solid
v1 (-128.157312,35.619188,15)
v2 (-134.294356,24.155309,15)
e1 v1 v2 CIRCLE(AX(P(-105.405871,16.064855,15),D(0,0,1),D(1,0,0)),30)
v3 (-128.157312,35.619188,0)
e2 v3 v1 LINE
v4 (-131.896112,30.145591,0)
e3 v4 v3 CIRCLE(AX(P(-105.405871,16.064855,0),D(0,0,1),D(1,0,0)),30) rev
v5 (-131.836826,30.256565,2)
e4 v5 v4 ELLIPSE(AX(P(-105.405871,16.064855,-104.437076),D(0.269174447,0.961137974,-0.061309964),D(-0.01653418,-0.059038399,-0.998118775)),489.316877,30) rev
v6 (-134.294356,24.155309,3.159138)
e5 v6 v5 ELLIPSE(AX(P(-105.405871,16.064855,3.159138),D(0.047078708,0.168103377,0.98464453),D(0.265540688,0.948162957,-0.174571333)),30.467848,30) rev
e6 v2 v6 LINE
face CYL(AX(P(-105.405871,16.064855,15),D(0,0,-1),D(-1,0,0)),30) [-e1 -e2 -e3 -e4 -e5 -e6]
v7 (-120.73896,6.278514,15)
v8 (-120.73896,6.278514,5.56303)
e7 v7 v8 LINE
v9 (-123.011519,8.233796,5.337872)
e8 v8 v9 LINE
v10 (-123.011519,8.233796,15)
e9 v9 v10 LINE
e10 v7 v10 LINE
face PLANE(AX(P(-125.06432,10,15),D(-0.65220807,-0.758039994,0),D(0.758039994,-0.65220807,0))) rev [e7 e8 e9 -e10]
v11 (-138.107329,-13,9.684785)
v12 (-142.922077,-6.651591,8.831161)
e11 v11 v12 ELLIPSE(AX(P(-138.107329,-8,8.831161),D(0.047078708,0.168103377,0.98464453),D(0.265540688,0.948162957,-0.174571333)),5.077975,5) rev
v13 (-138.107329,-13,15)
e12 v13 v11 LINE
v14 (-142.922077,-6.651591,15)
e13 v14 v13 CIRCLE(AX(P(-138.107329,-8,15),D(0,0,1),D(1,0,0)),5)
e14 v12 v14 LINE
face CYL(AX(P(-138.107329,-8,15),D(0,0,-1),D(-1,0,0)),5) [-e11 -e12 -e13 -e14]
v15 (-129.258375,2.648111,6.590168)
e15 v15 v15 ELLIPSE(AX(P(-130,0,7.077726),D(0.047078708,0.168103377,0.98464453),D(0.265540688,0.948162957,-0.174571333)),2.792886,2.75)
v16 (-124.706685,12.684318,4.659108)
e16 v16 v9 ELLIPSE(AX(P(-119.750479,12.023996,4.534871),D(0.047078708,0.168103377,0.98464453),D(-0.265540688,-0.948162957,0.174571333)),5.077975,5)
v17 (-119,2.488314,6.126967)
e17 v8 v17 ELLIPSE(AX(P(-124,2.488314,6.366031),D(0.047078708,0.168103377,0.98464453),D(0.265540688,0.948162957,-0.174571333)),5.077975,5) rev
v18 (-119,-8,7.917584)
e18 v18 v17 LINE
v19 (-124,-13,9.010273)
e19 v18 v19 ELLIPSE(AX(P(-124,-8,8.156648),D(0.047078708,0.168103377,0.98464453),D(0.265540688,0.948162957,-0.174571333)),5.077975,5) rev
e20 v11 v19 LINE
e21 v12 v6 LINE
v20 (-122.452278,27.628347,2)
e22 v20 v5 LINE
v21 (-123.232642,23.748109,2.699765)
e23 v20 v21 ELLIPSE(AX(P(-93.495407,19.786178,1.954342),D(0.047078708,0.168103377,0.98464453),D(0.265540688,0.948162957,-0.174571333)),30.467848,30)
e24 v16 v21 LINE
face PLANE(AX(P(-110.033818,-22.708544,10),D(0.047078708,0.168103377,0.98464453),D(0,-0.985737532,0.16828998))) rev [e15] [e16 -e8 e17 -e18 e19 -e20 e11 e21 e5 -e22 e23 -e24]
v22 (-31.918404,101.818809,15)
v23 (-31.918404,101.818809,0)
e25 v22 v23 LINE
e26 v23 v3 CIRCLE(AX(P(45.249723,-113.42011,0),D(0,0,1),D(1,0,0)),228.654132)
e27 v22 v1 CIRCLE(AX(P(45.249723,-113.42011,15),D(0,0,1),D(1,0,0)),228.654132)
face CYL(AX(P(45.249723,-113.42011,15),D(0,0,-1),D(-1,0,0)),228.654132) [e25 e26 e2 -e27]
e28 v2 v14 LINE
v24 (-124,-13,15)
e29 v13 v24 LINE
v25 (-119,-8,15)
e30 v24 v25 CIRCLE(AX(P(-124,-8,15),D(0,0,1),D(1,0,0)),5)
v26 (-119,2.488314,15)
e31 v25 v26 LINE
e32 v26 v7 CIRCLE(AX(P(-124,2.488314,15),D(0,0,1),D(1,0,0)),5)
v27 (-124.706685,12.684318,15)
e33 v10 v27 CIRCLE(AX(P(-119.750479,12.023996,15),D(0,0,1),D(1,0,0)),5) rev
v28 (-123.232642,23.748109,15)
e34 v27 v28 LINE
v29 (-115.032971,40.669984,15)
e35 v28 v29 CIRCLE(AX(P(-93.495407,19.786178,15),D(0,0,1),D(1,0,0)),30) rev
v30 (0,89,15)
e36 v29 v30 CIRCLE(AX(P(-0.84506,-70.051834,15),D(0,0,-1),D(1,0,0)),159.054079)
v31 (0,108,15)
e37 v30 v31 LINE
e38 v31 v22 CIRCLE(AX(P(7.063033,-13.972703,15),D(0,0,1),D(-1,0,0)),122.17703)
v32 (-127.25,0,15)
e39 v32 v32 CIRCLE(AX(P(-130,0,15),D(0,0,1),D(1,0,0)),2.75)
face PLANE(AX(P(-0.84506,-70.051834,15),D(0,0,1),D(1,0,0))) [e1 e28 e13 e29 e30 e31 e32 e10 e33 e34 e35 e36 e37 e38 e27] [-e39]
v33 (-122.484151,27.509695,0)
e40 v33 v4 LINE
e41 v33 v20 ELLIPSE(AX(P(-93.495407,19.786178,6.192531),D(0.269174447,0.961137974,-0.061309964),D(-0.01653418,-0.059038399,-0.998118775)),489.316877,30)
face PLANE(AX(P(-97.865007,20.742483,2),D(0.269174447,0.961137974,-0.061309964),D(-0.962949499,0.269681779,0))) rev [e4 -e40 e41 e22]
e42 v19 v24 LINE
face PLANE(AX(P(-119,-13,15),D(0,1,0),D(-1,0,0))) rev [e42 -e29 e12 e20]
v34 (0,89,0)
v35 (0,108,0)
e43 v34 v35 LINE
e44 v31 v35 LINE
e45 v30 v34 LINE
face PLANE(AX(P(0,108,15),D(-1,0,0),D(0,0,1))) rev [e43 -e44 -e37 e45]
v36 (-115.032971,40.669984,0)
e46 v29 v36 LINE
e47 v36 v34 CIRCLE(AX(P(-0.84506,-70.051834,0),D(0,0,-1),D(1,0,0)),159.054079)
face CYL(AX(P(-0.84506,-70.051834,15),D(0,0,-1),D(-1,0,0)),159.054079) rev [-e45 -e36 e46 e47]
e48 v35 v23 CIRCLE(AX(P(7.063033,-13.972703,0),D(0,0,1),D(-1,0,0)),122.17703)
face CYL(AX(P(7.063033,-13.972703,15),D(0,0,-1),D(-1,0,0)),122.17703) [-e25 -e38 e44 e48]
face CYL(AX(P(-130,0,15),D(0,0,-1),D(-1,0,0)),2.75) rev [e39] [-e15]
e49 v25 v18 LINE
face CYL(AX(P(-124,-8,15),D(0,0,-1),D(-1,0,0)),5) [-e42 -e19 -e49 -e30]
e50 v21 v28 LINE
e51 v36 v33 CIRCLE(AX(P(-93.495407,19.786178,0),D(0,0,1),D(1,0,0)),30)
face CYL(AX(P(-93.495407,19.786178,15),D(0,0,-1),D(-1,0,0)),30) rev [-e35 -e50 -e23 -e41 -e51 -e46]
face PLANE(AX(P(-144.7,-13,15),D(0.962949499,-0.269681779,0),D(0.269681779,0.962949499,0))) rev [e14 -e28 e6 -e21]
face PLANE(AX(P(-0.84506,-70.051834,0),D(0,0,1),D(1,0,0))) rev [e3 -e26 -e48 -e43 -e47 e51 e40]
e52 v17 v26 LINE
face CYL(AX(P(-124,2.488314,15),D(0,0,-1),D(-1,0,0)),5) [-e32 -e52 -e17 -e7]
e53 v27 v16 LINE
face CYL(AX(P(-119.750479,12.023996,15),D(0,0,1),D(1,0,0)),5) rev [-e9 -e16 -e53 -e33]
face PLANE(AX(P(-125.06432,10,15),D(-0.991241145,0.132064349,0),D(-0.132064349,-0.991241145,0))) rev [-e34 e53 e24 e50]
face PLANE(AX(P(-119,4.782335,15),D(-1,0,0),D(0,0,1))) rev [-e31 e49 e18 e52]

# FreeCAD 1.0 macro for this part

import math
import FreeCAD as App
import Part
import Sketcher

V = App.Vector


def edges_at(feature, points):
    """Names of the edges that pass closest to the given points."""
    edges = feature.Shape.Edges
    near = lambda p: min(range(len(edges)), key=lambda i: edges[i].distToShape(Part.Vertex(*p))[0])
    return sorted({f"Edge{near(p) + 1}" for p in points})

doc = App.newDocument("Part")
body = doc.addObject("PartDesign::Body", "Body")

# Sketch on XY plane
sketch1 = doc.addObject("Sketcher::SketchObject", "Sketch")
body.addObject(sketch1)
sketch1.AttachmentSupport = (doc.XY_Plane, [""])
sketch1.MapMode = "FlatFace"
sketch1.addGeometry(Part.LineSegment(V(-125.06432, 10, 0), V(-122, 33, 0)), False)
sketch1.addGeometry(Part.ArcOfCircle(Part.Circle(V(-0.84506, -70.051834, 0), V(0, 0, 1), 159.054079), math.radians(89.695584), math.radians(139.616213)), False)
sketch1.addGeometry(Part.LineSegment(V(0, 89, 0), V(0, 108, 0)), False)
sketch1.addGeometry(Part.ArcOfCircle(Part.Circle(V(7.063033, -13.972703, 0), V(0, 0, 1), 122.17703), math.radians(93.314107), math.radians(108.605906)), False)
sketch1.addGeometry(Part.ArcOfCircle(Part.Circle(V(45.249723, -113.42011, 0), V(0, 0, 1), 228.654132), math.radians(109.72393), math.radians(141.046374)), False)
sketch1.addGeometry(Part.LineSegment(V(-132.56432, 30.332727, 0), V(-144.7, -13, 0)), False)
sketch1.addGeometry(Part.LineSegment(V(-144.7, -13, 0), V(-119, -13, 0)), False)
sketch1.addGeometry(Part.LineSegment(V(-119, -13, 0), V(-119, 4.782335, 0)), False)
sketch1.addGeometry(Part.LineSegment(V(-119, 4.782335, 0), V(-125.06432, 10, 0)), False)
sketch1.addGeometry(Part.Circle(V(-130, 0, 0), V(0, 0, 1), 2.75), False)
sketch1.addConstraint(Sketcher.Constraint("Coincident", 0, 2, 1, 2))
sketch1.addConstraint(Sketcher.Constraint("Coincident", 1, 1, 2, 1))
sketch1.addConstraint(Sketcher.Constraint("Coincident", 2, 2, 3, 1))
sketch1.addConstraint(Sketcher.Constraint("Coincident", 3, 2, 4, 1))
sketch1.addConstraint(Sketcher.Constraint("Coincident", 4, 2, 5, 1))
sketch1.addConstraint(Sketcher.Constraint("Coincident", 5, 2, 6, 1))
sketch1.addConstraint(Sketcher.Constraint("Coincident", 6, 2, 7, 1))
sketch1.addConstraint(Sketcher.Constraint("Coincident", 7, 2, 8, 1))
sketch1.addConstraint(Sketcher.Constraint("Coincident", 8, 2, 0, 1))
sketch1.addConstraint(Sketcher.Constraint("Vertical", 2))
sketch1.addConstraint(Sketcher.Constraint("Horizontal", 6))
sketch1.addConstraint(Sketcher.Constraint("Vertical", 7))
sketch1.addConstraint(Sketcher.Constraint("PointOnObject", 9, 3, -1))
sketch1.addConstraint(Sketcher.Constraint("PointOnObject", 1, 1, -2))
sketch1.addConstraint(Sketcher.Constraint("Diameter", 9, 5.5))
sketch1.addConstraint(Sketcher.Constraint("DistanceY", 2, 1, 2, 2, 19.0))
sketch1.addConstraint(Sketcher.Constraint("Distance", 5, 45.0))
sketch1.addConstraint(Sketcher.Constraint("Distance", 8, 8.0))
sketch1.addConstraint(Sketcher.Constraint("DistanceX", 6, 1, 6, 2, 25.7))
sketch1.addConstraint(Sketcher.Constraint("DistanceX", 9, 3, -1, 1, 130.0))
sketch1.addConstraint(Sketcher.Constraint("DistanceX", 0, 2, -1, 1, 122.0))
sketch1.addConstraint(Sketcher.Constraint("DistanceY", -1, 1, 0, 2, 33.0))
sketch1.addConstraint(Sketcher.Constraint("DistanceY", -1, 1, 1, 1, 89.0))
sketch1.addConstraint(Sketcher.Constraint("DistanceY", 5, 2, -1, 1, 13.0))
sketch1.addConstraint(Sketcher.Constraint("DistanceX", 6, 2, -1, 1, 119.0))
sketch1.addConstraint(Sketcher.Constraint("DistanceY", -1, 1, 8, 2, 10.0))
sketch1.addConstraint(Sketcher.Constraint("DistanceX", 4, 2, 8, 2, 7.5))
sketch1.addConstraint(Sketcher.Constraint("Radius", 1, 159.054079))
sketch1.addConstraint(Sketcher.Constraint("Radius", 3, 122.17703))
sketch1.addConstraint(Sketcher.Constraint("Radius", 4, 228.654132))
sketch1.addConstraint(Sketcher.Constraint("DistanceY", 7, 1, 7, 2, 17.782335))
sketch1.addConstraint(Sketcher.Constraint("DistanceY", 4, 3, -1, 1, 113.42011))
sketch1.addConstraint(Sketcher.Constraint("DistanceY", -1, 1, 3, 2, 101.818809))
pad1 = doc.addObject("PartDesign::Pad", "Pad")
body.addObject(pad1)
pad1.Profile = sketch1
pad1.Length = 15

# Sketch on an angled plane
sketch2 = doc.addObject("Sketcher::SketchObject", "Sketch001")
body.addObject(sketch2)
sketch2.Placement = App.Placement(V(-130.800251, 36.631666, 0), App.Rotation(V(0, 0, 1), V(0.269681779, 0.962949499, 0), V(-0.962949499, 0.269681779, 0), "ZXY"))
sketch2.addGeometry(Part.LineSegment(V(0, -51.541297, 0), V(10, -51.541297, 0)), False)
sketch2.addGeometry(Part.LineSegment(V(10, -51.541297, 0), V(2, -6.418446, 0)), False)
sketch2.addGeometry(Part.LineSegment(V(2, -6.418446, 0), V(0, -6.541297, 0)), False)
sketch2.addGeometry(Part.LineSegment(V(0, -6.541297, 0), V(0, -51.541297, 0)), False)
sketch2.addConstraint(Sketcher.Constraint("Coincident", 0, 2, 1, 1))
sketch2.addConstraint(Sketcher.Constraint("Coincident", 1, 2, 2, 1))
sketch2.addConstraint(Sketcher.Constraint("Coincident", 2, 2, 3, 1))
sketch2.addConstraint(Sketcher.Constraint("Coincident", 3, 2, 0, 1))
sketch2.addConstraint(Sketcher.Constraint("Horizontal", 0))
sketch2.addConstraint(Sketcher.Constraint("Vertical", 3))
sketch2.addConstraint(Sketcher.Constraint("PointOnObject", 2, 2, -2))
sketch2.addConstraint(Sketcher.Constraint("DistanceX", 0, 1, 0, 2, 10.0))
sketch2.addConstraint(Sketcher.Constraint("DistanceY", 3, 2, 3, 1, 45.0))
sketch2.addConstraint(Sketcher.Constraint("DistanceX", -1, 1, 1, 2, 2.0))
sketch2.addConstraint(Sketcher.Constraint("Distance", 1, 45.826539))
sketch2.addConstraint(Sketcher.Constraint("DistanceY", 0, 2, -1, 1, 51.541297))
pocket1 = doc.addObject("PartDesign::Pocket", "Pocket")
body.addObject(pocket1)
pocket1.Profile = sketch2
pocket1.Length = 36
doc.recompute()

fillet = doc.addObject("PartDesign::Fillet", "Fillet")
body.addObject(fillet)
fillet.Base = (pocket1, edges_at(pocket1, [(-132.564, 30.333, 8.511)]))
fillet.Radius = 30
doc.recompute()

fillet2 = doc.addObject("PartDesign::Fillet", "Fillet001")
body.addObject(fillet2)
fillet2.Base = (fillet, edges_at(fillet, [(-122, 33, 7.5)]))
fillet2.Radius = 30
doc.recompute()

fillet3 = doc.addObject("PartDesign::Fillet", "Fillet002")
body.addObject(fillet3)
fillet3.Base = (fillet2, edges_at(fillet2, [(-125.064, 10, 10.067)]))
fillet3.Radius = 5
doc.recompute()

fillet4 = doc.addObject("PartDesign::Fillet", "Fillet003")
body.addObject(fillet4)
fillet4.Base = (fillet3, edges_at(fillet3, [(-119, 4.782, 10.368)]))
fillet4.Radius = 5
doc.recompute()

fillet5 = doc.addObject("PartDesign::Fillet", "Fillet004")
body.addObject(fillet5)
fillet5.Base = (fillet4, edges_at(fillet4, [(-119, -13, 11.886)]))
fillet5.Radius = 5
doc.recompute()

fillet6 = doc.addObject("PartDesign::Fillet", "Fillet005")
body.addObject(fillet6)
fillet6.Base = (fillet5, edges_at(fillet5, [(-144.7, -13, 12.5)]))
fillet6.Radius = 5

doc.recompute()
